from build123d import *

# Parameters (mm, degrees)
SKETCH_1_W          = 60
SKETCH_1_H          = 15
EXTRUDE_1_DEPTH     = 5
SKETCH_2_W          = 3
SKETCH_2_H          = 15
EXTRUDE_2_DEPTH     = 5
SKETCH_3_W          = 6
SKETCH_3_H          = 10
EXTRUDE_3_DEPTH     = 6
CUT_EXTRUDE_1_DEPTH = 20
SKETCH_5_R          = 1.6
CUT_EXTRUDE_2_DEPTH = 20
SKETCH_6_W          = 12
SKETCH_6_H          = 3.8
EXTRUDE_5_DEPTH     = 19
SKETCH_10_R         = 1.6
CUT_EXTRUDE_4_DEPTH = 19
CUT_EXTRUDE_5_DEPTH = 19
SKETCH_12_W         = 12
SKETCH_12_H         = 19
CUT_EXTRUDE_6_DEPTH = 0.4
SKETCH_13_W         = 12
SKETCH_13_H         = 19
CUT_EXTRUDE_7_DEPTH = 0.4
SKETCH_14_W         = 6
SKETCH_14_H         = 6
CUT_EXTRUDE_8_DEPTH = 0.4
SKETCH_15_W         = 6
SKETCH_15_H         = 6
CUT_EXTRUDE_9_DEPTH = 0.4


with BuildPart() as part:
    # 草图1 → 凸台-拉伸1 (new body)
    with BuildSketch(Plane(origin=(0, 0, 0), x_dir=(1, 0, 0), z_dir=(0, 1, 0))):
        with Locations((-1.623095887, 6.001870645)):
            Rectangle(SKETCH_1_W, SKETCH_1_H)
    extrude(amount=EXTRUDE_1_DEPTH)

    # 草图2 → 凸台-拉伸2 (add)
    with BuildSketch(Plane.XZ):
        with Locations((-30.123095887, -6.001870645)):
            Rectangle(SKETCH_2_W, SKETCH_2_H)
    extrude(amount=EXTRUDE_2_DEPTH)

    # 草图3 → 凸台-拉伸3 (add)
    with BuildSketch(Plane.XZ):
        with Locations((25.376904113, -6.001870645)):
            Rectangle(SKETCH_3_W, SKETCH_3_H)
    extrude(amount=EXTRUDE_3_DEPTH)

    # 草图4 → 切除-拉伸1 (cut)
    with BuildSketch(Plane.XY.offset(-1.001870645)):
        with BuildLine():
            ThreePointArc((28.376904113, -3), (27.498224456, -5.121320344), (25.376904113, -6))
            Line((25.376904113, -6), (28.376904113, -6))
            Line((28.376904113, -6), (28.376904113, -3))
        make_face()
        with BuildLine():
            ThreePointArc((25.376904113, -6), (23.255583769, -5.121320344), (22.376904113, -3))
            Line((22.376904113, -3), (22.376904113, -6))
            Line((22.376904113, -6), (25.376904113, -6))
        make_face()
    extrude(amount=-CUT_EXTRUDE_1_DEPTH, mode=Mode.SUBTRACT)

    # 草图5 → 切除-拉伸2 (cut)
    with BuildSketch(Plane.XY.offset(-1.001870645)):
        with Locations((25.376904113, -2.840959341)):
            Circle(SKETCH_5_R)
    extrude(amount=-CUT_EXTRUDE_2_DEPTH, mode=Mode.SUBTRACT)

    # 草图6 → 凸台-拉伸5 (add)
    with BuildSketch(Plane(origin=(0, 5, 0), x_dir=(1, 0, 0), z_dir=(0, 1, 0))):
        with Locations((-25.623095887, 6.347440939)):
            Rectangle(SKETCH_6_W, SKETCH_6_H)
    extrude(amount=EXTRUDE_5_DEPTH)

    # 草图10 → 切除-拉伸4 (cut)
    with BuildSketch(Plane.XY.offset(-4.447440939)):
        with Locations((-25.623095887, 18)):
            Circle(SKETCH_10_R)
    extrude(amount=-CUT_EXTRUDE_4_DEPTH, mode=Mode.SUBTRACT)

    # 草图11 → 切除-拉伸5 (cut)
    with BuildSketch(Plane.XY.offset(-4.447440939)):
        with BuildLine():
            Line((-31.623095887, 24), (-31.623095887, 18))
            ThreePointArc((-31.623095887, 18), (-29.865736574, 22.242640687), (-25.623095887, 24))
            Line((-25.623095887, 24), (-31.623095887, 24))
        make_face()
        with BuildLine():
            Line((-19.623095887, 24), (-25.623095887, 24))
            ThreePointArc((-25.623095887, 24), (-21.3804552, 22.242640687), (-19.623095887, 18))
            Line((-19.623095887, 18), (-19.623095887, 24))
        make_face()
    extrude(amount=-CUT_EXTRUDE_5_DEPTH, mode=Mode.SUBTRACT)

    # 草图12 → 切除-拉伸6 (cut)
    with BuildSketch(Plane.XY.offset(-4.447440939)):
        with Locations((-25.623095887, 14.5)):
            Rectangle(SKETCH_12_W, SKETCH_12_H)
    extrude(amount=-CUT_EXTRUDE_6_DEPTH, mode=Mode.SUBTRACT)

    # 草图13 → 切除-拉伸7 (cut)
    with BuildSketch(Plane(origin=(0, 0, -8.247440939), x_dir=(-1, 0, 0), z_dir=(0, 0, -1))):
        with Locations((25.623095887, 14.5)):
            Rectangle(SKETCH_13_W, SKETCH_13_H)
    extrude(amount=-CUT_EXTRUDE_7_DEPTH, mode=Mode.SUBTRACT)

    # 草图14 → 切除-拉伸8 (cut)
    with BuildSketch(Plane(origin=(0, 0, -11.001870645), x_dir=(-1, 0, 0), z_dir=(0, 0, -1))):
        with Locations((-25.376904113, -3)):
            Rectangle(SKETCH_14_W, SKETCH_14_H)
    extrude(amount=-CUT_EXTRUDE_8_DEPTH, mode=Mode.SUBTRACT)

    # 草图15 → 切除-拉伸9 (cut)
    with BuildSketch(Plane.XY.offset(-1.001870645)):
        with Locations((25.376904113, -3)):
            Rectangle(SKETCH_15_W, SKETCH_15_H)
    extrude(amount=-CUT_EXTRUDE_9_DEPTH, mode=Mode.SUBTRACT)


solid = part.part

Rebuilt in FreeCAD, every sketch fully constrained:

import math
import FreeCAD as App
import Part
import Sketcher
from FreeCAD import Vector


def add_polygon(sketch, points):
    """Adds a closed chain of lines whose ends are joined by coincident constraints."""
    first, n = sketch.GeometryCount, len(points)
    for a, b in zip(points, points[1:] + points[:1]):
        sketch.addGeometry(Part.LineSegment(App.Vector(*a, 0), App.Vector(*b, 0)), False)
    for i in range(n):
        sketch.addConstraint(Sketcher.Constraint("Coincident", first + i, 2, first + (i + 1) % n, 1))

doc = App.newDocument("Part")
body = doc.addObject("PartDesign::Body", "Body")

# Sketch on XZ plane
sketch1 = doc.addObject("Sketcher::SketchObject", "Sketch")
body.addObject(sketch1)
sketch1.AttachmentSupport = (doc.XZ_Plane, [""])
sketch1.MapMode = "FlatFace"
add_polygon(sketch1, [(-31.623096, -13.501871), (-31.623096, 1.498129), (28.376904, 1.498129), (28.376904, -13.501871)])  # lines 0-3
sketch1.addConstraint([
    Sketcher.Constraint("Vertical", 0),
    Sketcher.Constraint("Horizontal", 1),
    Sketcher.Constraint("Vertical", 2),
    Sketcher.Constraint("Horizontal", 3),
    Sketcher.Constraint("DistanceX", 1, 1, 1, 2, 60.0),
    Sketcher.Constraint("DistanceY", 0, 1, 0, 2, 15.0),
    Sketcher.Constraint("DistanceY", -1, 1, 0, 2, 1.498129),
    Sketcher.Constraint("DistanceX", 0, 2, -1, 1, 31.623096),
])
pad1 = doc.addObject("PartDesign::Pad", "Pad")
body.addObject(pad1)
pad1.Profile = sketch1
pad1.Length = 5
pad1.Reversed = True

# Sketch on XZ plane
sketch2 = doc.addObject("Sketcher::SketchObject", "Sketch001")
body.addObject(sketch2)
sketch2.AttachmentSupport = (doc.XZ_Plane, [""])
sketch2.MapMode = "FlatFace"
add_polygon(sketch2, [(-31.623096, 1.498129), (-31.623096, -13.501871), (-28.623096, -13.501871), (-28.623096, 1.498129)])  # lines 0-3
sketch2.addConstraint([
    Sketcher.Constraint("Vertical", 0),
    Sketcher.Constraint("Horizontal", 1),
    Sketcher.Constraint("Vertical", 2),
    Sketcher.Constraint("Horizontal", 3),
    Sketcher.Constraint("DistanceX", 1, 1, 1, 2, 3.0),
    Sketcher.Constraint("DistanceY", 0, 2, 0, 1, 15.0),
    Sketcher.Constraint("DistanceY", 0, 2, -1, 1, 13.501871),
    Sketcher.Constraint("DistanceX", 0, 2, -1, 1, 31.623096),
])
pad2 = doc.addObject("PartDesign::Pad", "Pad001")
body.addObject(pad2)
pad2.Profile = sketch2
pad2.Length = 5

# Sketch on XZ plane
sketch3 = doc.addObject("Sketcher::SketchObject", "Sketch002")
body.addObject(sketch3)
sketch3.AttachmentSupport = (doc.XZ_Plane, [""])
sketch3.MapMode = "FlatFace"
add_polygon(sketch3, [(22.376904, -1.001871), (22.376904, -11.001871), (28.376904, -11.001871), (28.376904, -1.001871)])  # lines 0-3
sketch3.addConstraint([
    Sketcher.Constraint("Vertical", 0),
    Sketcher.Constraint("Horizontal", 1),
    Sketcher.Constraint("Vertical", 2),
    Sketcher.Constraint("Horizontal", 3),
    Sketcher.Constraint("DistanceX", 1, 1, 1, 2, 6.0),
    Sketcher.Constraint("DistanceY", 0, 2, 0, 1, 10.0),
    Sketcher.Constraint("DistanceY", 0, 2, -1, 1, 11.001871),
    Sketcher.Constraint("DistanceX", -1, 1, 0, 2, 22.376904),
])
pad3 = doc.addObject("PartDesign::Pad", "Pad002")
body.addObject(pad3)
pad3.Profile = sketch3
pad3.Length = 6

# Sketch on XY plane
sketch4 = doc.addObject("Sketcher::SketchObject", "Sketch003")
body.addObject(sketch4)
sketch4.AttachmentSupport = (doc.XY_Plane, [""])
sketch4.MapMode = "FlatFace"
sketch4.AttachmentOffset = App.Placement(Vector(0, 0, -1.001871), App.Rotation())
sketch4.addGeometry([
    Part.ArcOfCircle(Part.Circle(Vector(25.376904, -3, 0), Vector(0, 0, 1), 3), math.radians(-90), math.radians(0)),  # 0
    Part.LineSegment(Vector(25.376904, -6, 0), Vector(28.376904, -6, 0)),  # 1
    Part.LineSegment(Vector(28.376904, -6, 0), Vector(28.376904, -3, 0)),  # 2
    Part.ArcOfCircle(Part.Circle(Vector(25.376904, -3, 0), Vector(0, 0, 1), 3), math.radians(180), math.radians(270)),  # 3
    Part.LineSegment(Vector(22.376904, -3, 0), Vector(22.376904, -6, 0)),  # 4
    Part.LineSegment(Vector(22.376904, -6, 0), Vector(25.376904, -6, 0)),  # 5
], False)
sketch4.addConstraint([
    Sketcher.Constraint("Tangent", 0, 1, 1, 1),
    Sketcher.Constraint("Coincident", 1, 2, 2, 1),
    Sketcher.Constraint("Tangent", 2, 2, 0, 2),
    Sketcher.Constraint("Tangent", 3, 1, 4, 1),
    Sketcher.Constraint("Coincident", 4, 2, 5, 1),
    Sketcher.Constraint("Tangent", 5, 2, 3, 2),
    Sketcher.Constraint("Horizontal", 1),
    Sketcher.Constraint("Vertical", 2),
    Sketcher.Constraint("Vertical", 4),
    Sketcher.Constraint("Horizontal", 5),
    Sketcher.Constraint("Coincident", 3, 3, 0, 3),
    Sketcher.Constraint("Equal", 0, 3),
    Sketcher.Constraint("Radius", 0, 3.0),
    Sketcher.Constraint("DistanceY", 0, 3, -1, 1, 3.0),
    Sketcher.Constraint("DistanceX", -1, 1, 0, 3, 25.376904),
])
pocket1 = doc.addObject("PartDesign::Pocket", "Pocket")
body.addObject(pocket1)
pocket1.Profile = sketch4
pocket1.Length = 20

# Sketch on XY plane
sketch5 = doc.addObject("Sketcher::SketchObject", "Sketch004")
body.addObject(sketch5)
sketch5.AttachmentSupport = (doc.XY_Plane, [""])
sketch5.MapMode = "FlatFace"
sketch5.AttachmentOffset = App.Placement(Vector(0, 0, -1.001871), App.Rotation())
sketch5.addGeometry(Part.Circle(Vector(25.376904, -2.840959, 0), Vector(0, 0, 1), 1.6), False)
sketch5.addConstraint([
    Sketcher.Constraint("Diameter", 0, 3.2),
    Sketcher.Constraint("DistanceY", 0, 3, -1, 1, 2.840959),
    Sketcher.Constraint("DistanceX", -1, 1, 0, 3, 25.376904),
])
pocket2 = doc.addObject("PartDesign::Pocket", "Pocket001")
body.addObject(pocket2)
pocket2.Profile = sketch5
pocket2.Length = 20

# Sketch on XZ plane
sketch6 = doc.addObject("Sketcher::SketchObject", "Sketch005")
body.addObject(sketch6)
sketch6.AttachmentSupport = (doc.XZ_Plane, [""])
sketch6.MapMode = "FlatFace"
sketch6.AttachmentOffset = App.Placement(Vector(0, 0, -5), App.Rotation())
add_polygon(sketch6, [(-31.623096, -8.247441), (-31.623096, -4.447441), (-19.623096, -4.447441), (-19.623096, -8.247441)])  # lines 0-3
sketch6.addConstraint([
    Sketcher.Constraint("Vertical", 0),
    Sketcher.Constraint("Horizontal", 1),
    Sketcher.Constraint("Vertical", 2),
    Sketcher.Constraint("Horizontal", 3),
    Sketcher.Constraint("DistanceX", 1, 1, 1, 2, 12.0),
    Sketcher.Constraint("DistanceY", 0, 1, 0, 2, 3.8),
    Sketcher.Constraint("DistanceY", 0, 2, -1, 1, 4.447441),
    Sketcher.Constraint("DistanceX", 0, 2, -1, 1, 31.623096),
])
pad4 = doc.addObject("PartDesign::Pad", "Pad003")
body.addObject(pad4)
pad4.Profile = sketch6
pad4.Length = 19
pad4.Reversed = True

# Sketch on XY plane
sketch7 = doc.addObject("Sketcher::SketchObject", "Sketch006")
body.addObject(sketch7)
sketch7.AttachmentSupport = (doc.XY_Plane, [""])
sketch7.MapMode = "FlatFace"
sketch7.AttachmentOffset = App.Placement(Vector(0, 0, -4.447441), App.Rotation())
sketch7.addGeometry(Part.Circle(Vector(-25.623096, 18, 0), Vector(0, 0, 1), 1.6), False)
sketch7.addConstraint([
    Sketcher.Constraint("Diameter", 0, 3.2),
    Sketcher.Constraint("DistanceY", -1, 1, 0, 3, 18.0),
    Sketcher.Constraint("DistanceX", 0, 3, -1, 1, 25.623096),
])
pocket3 = doc.addObject("PartDesign::Pocket", "Pocket002")
body.addObject(pocket3)
pocket3.Profile = sketch7
pocket3.Length = 19

# Sketch on XY plane
sketch8 = doc.addObject("Sketcher::SketchObject", "Sketch007")
body.addObject(sketch8)
sketch8.AttachmentSupport = (doc.XY_Plane, [""])
sketch8.MapMode = "FlatFace"
sketch8.AttachmentOffset = App.Placement(Vector(0, 0, -4.447441), App.Rotation())
sketch8.addGeometry([
    Part.LineSegment(Vector(-31.623096, 24, 0), Vector(-31.623096, 18, 0)),  # 0
    Part.ArcOfCircle(Part.Circle(Vector(-25.623096, 18, 0), Vector(0, 0, 1), 6), math.radians(90), math.radians(180)),  # 1
    Part.LineSegment(Vector(-25.623096, 24, 0), Vector(-31.623096, 24, 0)),  # 2
    Part.LineSegment(Vector(-19.623096, 24, 0), Vector(-25.623096, 24, 0)),  # 3
    Part.ArcOfCircle(Part.Circle(Vector(-25.623096, 18, 0), Vector(0, 0, 1), 6), math.radians(0), math.radians(90)),  # 4
    Part.LineSegment(Vector(-19.623096, 18, 0), Vector(-19.623096, 24, 0)),  # 5
], False)
sketch8.addConstraint([
    Sketcher.Constraint("Tangent", 0, 2, 1, 2),
    Sketcher.Constraint("Tangent", 1, 1, 2, 1),
    Sketcher.Constraint("Coincident", 2, 2, 0, 1),
    Sketcher.Constraint("Tangent", 3, 2, 4, 2),
    Sketcher.Constraint("Tangent", 4, 1, 5, 1),
    Sketcher.Constraint("Coincident", 5, 2, 3, 1),
    Sketcher.Constraint("Vertical", 0),
    Sketcher.Constraint("Horizontal", 2),
    Sketcher.Constraint("Horizontal", 3),
    Sketcher.Constraint("Vertical", 5),
    Sketcher.Constraint("Coincident", 4, 3, 1, 3),
    Sketcher.Constraint("Equal", 1, 4),
    Sketcher.Constraint("Radius", 1, 6.0),
    Sketcher.Constraint("DistanceY", -1, 1, 1, 3, 18.0),
    Sketcher.Constraint("DistanceX", 1, 3, -1, 1, 25.623096),
])
pocket4 = doc.addObject("PartDesign::Pocket", "Pocket003")
body.addObject(pocket4)
pocket4.Profile = sketch8
pocket4.Length = 19

# Sketch on XY plane
sketch9 = doc.addObject("Sketcher::SketchObject", "Sketch008")
body.addObject(sketch9)
sketch9.AttachmentSupport = (doc.XY_Plane, [""])
sketch9.MapMode = "FlatFace"
sketch9.AttachmentOffset = App.Placement(Vector(0, 0, -4.447441), App.Rotation())
add_polygon(sketch9, [(-31.623096, 24), (-31.623096, 5), (-19.623096, 5), (-19.623096, 24)])  # lines 0-3
sketch9.addConstraint([
    Sketcher.Constraint("Vertical", 0),
    Sketcher.Constraint("Horizontal", 1),
    Sketcher.Constraint("Vertical", 2),
    Sketcher.Constraint("Horizontal", 3),
    Sketcher.Constraint("DistanceX", 1, 1, 1, 2, 12.0),
    Sketcher.Constraint("DistanceY", 0, 2, 0, 1, 19.0),
    Sketcher.Constraint("DistanceY", -1, 1, 0, 2, 5.0),
    Sketcher.Constraint("DistanceX", 0, 2, -1, 1, 31.623096),
])
pocket5 = doc.addObject("PartDesign::Pocket", "Pocket004")
body.addObject(pocket5)
pocket5.Profile = sketch9
pocket5.Length = 0.4

# Sketch on XY plane
sketch10 = doc.addObject("Sketcher::SketchObject", "Sketch009")
body.addObject(sketch10)
sketch10.AttachmentSupport = (doc.XY_Plane, [""])
sketch10.MapMode = "FlatFace"
sketch10.AttachmentOffset = App.Placement(Vector(0, 0, -8.247441), App.Rotation())
add_polygon(sketch10, [(-19.623096, 24), (-19.623096, 5), (-31.623096, 5), (-31.623096, 24)])  # lines 0-3
sketch10.addConstraint([
    Sketcher.Constraint("Vertical", 0),
    Sketcher.Constraint("Horizontal", 1),
    Sketcher.Constraint("Vertical", 2),
    Sketcher.Constraint("Horizontal", 3),
    Sketcher.Constraint("DistanceX", 1, 2, 1, 1, 12.0),
    Sketcher.Constraint("DistanceY", 0, 2, 0, 1, 19.0),
    Sketcher.Constraint("DistanceY", -1, 1, 0, 2, 5.0),
    Sketcher.Constraint("DistanceX", 0, 2, -1, 1, 19.623096),
])
pocket6 = doc.addObject("PartDesign::Pocket", "Pocket005")
body.addObject(pocket6)
pocket6.Profile = sketch10
pocket6.Length = 0.4
pocket6.Reversed = True

# Sketch on XY plane
sketch11 = doc.addObject("Sketcher::SketchObject", "Sketch010")
body.addObject(sketch11)
sketch11.AttachmentSupport = (doc.XY_Plane, [""])
sketch11.MapMode = "FlatFace"
sketch11.AttachmentOffset = App.Placement(Vector(0, 0, -11.001871), App.Rotation())
add_polygon(sketch11, [(28.376904, 0), (28.376904, -6), (22.376904, -6), (22.376904, 0)])  # lines 0-3
sketch11.addConstraint([
    Sketcher.Constraint("Vertical", 0),
    Sketcher.Constraint("Horizontal", 1),
    Sketcher.Constraint("Vertical", 2),
    Sketcher.Constraint("Horizontal", 3),
    Sketcher.Constraint("PointOnObject", 2, 2, -1),
    Sketcher.Constraint("Equal", 3, 0),
    Sketcher.Constraint("DistanceX", 1, 2, 1, 1, 6.0),
    Sketcher.Constraint("DistanceX", -1, 1, 0, 2, 28.376904),
])
pocket7 = doc.addObject("PartDesign::Pocket", "Pocket006")
body.addObject(pocket7)
pocket7.Profile = sketch11
pocket7.Length = 0.4
pocket7.Reversed = True

# Sketch on XY plane
sketch12 = doc.addObject("Sketcher::SketchObject", "Sketch011")
body.addObject(sketch12)
sketch12.AttachmentSupport = (doc.XY_Plane, [""])
sketch12.MapMode = "FlatFace"
sketch12.AttachmentOffset = App.Placement(Vector(0, 0, -1.001871), App.Rotation())
add_polygon(sketch12, [(22.376904, 0), (22.376904, -6), (28.376904, -6), (28.376904, 0)])  # lines 0-3
sketch12.addConstraint([
    Sketcher.Constraint("Vertical", 0),
    Sketcher.Constraint("Horizontal", 1),
    Sketcher.Constraint("Vertical", 2),
    Sketcher.Constraint("Horizontal", 3),
    Sketcher.Constraint("PointOnObject", 2, 2, -1),
    Sketcher.Constraint("Equal", 3, 0),
    Sketcher.Constraint("DistanceX", 1, 1, 1, 2, 6.0),
    Sketcher.Constraint("DistanceX", -1, 1, 0, 2, 22.376904),
])
pocket8 = doc.addObject("PartDesign::Pocket", "Pocket007")
body.addObject(pocket8)
pocket8.Profile = sketch12
pocket8.Length = 0.4

doc.recompute()
